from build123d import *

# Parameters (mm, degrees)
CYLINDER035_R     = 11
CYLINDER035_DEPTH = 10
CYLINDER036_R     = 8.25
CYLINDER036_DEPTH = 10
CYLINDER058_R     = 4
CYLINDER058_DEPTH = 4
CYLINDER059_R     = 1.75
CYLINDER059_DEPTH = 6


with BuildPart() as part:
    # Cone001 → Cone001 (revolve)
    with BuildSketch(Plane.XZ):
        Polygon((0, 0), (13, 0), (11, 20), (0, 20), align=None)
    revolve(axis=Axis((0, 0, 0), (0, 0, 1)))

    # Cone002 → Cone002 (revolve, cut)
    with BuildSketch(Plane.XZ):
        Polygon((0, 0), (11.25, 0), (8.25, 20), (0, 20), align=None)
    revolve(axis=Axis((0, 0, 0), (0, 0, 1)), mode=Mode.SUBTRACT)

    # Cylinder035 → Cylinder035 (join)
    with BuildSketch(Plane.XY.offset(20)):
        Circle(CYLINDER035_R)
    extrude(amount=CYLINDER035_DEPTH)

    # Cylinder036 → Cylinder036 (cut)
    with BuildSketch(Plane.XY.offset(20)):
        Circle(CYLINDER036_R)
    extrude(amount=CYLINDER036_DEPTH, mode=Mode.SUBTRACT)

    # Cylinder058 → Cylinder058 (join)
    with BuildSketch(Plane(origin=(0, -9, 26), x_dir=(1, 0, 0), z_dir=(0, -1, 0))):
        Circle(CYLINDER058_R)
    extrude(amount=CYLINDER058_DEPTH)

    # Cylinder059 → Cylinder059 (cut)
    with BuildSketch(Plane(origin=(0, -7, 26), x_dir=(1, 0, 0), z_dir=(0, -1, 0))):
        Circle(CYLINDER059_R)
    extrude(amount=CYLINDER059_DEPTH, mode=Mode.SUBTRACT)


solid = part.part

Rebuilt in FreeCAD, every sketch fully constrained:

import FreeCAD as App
import Part
import Sketcher
Q = App.Units.Quantity

doc = App.newDocument("Part")
body = doc.addObject("PartDesign::Body", "Body")

# Sketch on XZ plane
sketch1 = doc.addObject("Sketcher::SketchObject", "Sketch")
body.addObject(sketch1)
sketch1.AttachmentSupport = (doc.XZ_Plane, [""])
sketch1.MapMode = "FlatFace"
sketch1.addGeometry([
    Part.LineSegment(App.Vector(0, 0, 0), App.Vector(13, 0, 0)),
    Part.LineSegment(App.Vector(13, 0, 0), App.Vector(11, 20, 0)),
    Part.LineSegment(App.Vector(11, 20, 0), App.Vector(0, 20, 0)),
    Part.LineSegment(App.Vector(0, 20, 0), App.Vector(0, 0, 0)),
], False)
sketch1.addConstraint([
    Sketcher.Constraint("Coincident", 0, 2, 1, 1),
    Sketcher.Constraint("Coincident", 1, 2, 2, 1),
    Sketcher.Constraint("Coincident", 2, 2, 3, 1),
    Sketcher.Constraint("Coincident", 3, 2, 0, 1),
    Sketcher.Constraint("Horizontal", 0),
    Sketcher.Constraint("Horizontal", 2),
    Sketcher.Constraint("Vertical", 3),
    Sketcher.Constraint("Coincident", 3, 2, -1, 1),
    Sketcher.Constraint("DistanceX", 0, 1, 0, 2, Q("13 mm")),
    Sketcher.Constraint("DistanceX", 2, 2, 2, 1, Q("11 mm")),
    Sketcher.Constraint("DistanceY", 3, 2, 3, 1, Q("20 mm")),
])
revolution = doc.addObject("PartDesign::Revolution", "Revolution")
body.addObject(revolution)
revolution.Profile = sketch1
revolution.ReferenceAxis = (sketch1, ["V_Axis"])
revolution.Angle = 360

# Sketch on XZ plane
sketch2 = doc.addObject("Sketcher::SketchObject", "Sketch001")
body.addObject(sketch2)
sketch2.AttachmentSupport = (doc.XZ_Plane, [""])
sketch2.MapMode = "FlatFace"
sketch2.addGeometry([
    Part.LineSegment(App.Vector(0, 0, 0), App.Vector(11, 0, 0)),
    Part.LineSegment(App.Vector(11, 0, 0), App.Vector(8, 20, 0)),
    Part.LineSegment(App.Vector(8, 20, 0), App.Vector(0, 20, 0)),
    Part.LineSegment(App.Vector(0, 20, 0), App.Vector(0, 0, 0)),
], False)
sketch2.addConstraint([
    Sketcher.Constraint("Coincident", 0, 2, 1, 1),
    Sketcher.Constraint("Coincident", 1, 2, 2, 1),
    Sketcher.Constraint("Coincident", 2, 2, 3, 1),
    Sketcher.Constraint("Coincident", 3, 2, 0, 1),
    Sketcher.Constraint("Horizontal", 0),
    Sketcher.Constraint("Horizontal", 2),
    Sketcher.Constraint("Vertical", 3),
    Sketcher.Constraint("Coincident", 3, 2, -1, 1),
    Sketcher.Constraint("DistanceY", 3, 2, 3, 1, Q("20 mm")),
    Sketcher.Constraint("DistanceX", 1, 2, 0, 2, Q("3 mm")),
    Sketcher.Constraint("DistanceX", 0, 1, 0, 2, Q("11.25 mm")),
])
groove = doc.addObject("PartDesign::Groove", "Groove")
body.addObject(groove)
groove.Profile = sketch2
groove.ReferenceAxis = (sketch2, ["V_Axis"])
groove.Angle = 360

# Sketch on XY plane
sketch3 = doc.addObject("Sketcher::SketchObject", "Sketch002")
body.addObject(sketch3)
sketch3.AttachmentSupport = (doc.XY_Plane, [""])
sketch3.MapMode = "FlatFace"
sketch3.AttachmentOffset = App.Placement(App.Vector(0, 0, 20), App.Rotation())
sketch3.addGeometry(Part.Circle(App.Vector(0, 0, 0), App.Vector(0, 0, 1), 11), False)
sketch3.addConstraint([
    Sketcher.Constraint("Coincident", 0, 3, -1, 1),
    Sketcher.Constraint("Diameter", 0, Q("22 mm")),
])
pad1 = doc.addObject("PartDesign::Pad", "Pad")
body.addObject(pad1)
pad1.Profile = sketch3
pad1.Length = 10

# Sketch on XY plane
sketch4 = doc.addObject("Sketcher::SketchObject", "Sketch003")
body.addObject(sketch4)
sketch4.AttachmentSupport = (doc.XY_Plane, [""])
sketch4.MapMode = "FlatFace"
sketch4.AttachmentOffset = App.Placement(App.Vector(0, 0, 20), App.Rotation())
sketch4.addGeometry(Part.Circle(App.Vector(0, 0, 0), App.Vector(0, 0, 1), 8), False)
sketch4.addConstraint([
    Sketcher.Constraint("Coincident", 0, 3, -1, 1),
    Sketcher.Constraint("Diameter", 0, Q("16.5 mm")),
])
pocket1 = doc.addObject("PartDesign::Pocket", "Pocket")
body.addObject(pocket1)
pocket1.Profile = sketch4
pocket1.Length = 10
pocket1.Reversed = True

# Sketch on XZ plane
sketch5 = doc.addObject("Sketcher::SketchObject", "Sketch004")
body.addObject(sketch5)
sketch5.AttachmentSupport = (doc.XZ_Plane, [""])
sketch5.MapMode = "FlatFace"
sketch5.AttachmentOffset = App.Placement(App.Vector(0, 0, 9), App.Rotation())
sketch5.addGeometry(Part.Circle(App.Vector(0, 26, 0), App.Vector(0, 0, 1), 4), False)
sketch5.addConstraint([
    Sketcher.Constraint("PointOnObject", 0, 3, -2),
    Sketcher.Constraint("Diameter", 0, Q("8 mm")),
    Sketcher.Constraint("DistanceY", -1, 1, 0, 3, Q("26 mm")),
])
pad2 = doc.addObject("PartDesign::Pad", "Pad001")
body.addObject(pad2)
pad2.Profile = sketch5
pad2.Length = 4

# Sketch on XZ plane
sketch6 = doc.addObject("Sketcher::SketchObject", "Sketch005")
body.addObject(sketch6)
sketch6.AttachmentSupport = (doc.XZ_Plane, [""])
sketch6.MapMode = "FlatFace"
sketch6.AttachmentOffset = App.Placement(App.Vector(0, 0, 7), App.Rotation())
sketch6.addGeometry(Part.Circle(App.Vector(0, 26, 0), App.Vector(0, 0, 1), 1.8), False)
sketch6.addConstraint([
    Sketcher.Constraint("PointOnObject", 0, 3, -2),
    Sketcher.Constraint("Diameter", 0, Q("3.5 mm")),
    Sketcher.Constraint("DistanceY", -1, 1, 0, 3, Q("26 mm")),
])
pocket2 = doc.addObject("PartDesign::Pocket", "Pocket001")
body.addObject(pocket2)
pocket2.Profile = sketch6
pocket2.Length = 6
pocket2.Reversed = True

doc.recompute()
